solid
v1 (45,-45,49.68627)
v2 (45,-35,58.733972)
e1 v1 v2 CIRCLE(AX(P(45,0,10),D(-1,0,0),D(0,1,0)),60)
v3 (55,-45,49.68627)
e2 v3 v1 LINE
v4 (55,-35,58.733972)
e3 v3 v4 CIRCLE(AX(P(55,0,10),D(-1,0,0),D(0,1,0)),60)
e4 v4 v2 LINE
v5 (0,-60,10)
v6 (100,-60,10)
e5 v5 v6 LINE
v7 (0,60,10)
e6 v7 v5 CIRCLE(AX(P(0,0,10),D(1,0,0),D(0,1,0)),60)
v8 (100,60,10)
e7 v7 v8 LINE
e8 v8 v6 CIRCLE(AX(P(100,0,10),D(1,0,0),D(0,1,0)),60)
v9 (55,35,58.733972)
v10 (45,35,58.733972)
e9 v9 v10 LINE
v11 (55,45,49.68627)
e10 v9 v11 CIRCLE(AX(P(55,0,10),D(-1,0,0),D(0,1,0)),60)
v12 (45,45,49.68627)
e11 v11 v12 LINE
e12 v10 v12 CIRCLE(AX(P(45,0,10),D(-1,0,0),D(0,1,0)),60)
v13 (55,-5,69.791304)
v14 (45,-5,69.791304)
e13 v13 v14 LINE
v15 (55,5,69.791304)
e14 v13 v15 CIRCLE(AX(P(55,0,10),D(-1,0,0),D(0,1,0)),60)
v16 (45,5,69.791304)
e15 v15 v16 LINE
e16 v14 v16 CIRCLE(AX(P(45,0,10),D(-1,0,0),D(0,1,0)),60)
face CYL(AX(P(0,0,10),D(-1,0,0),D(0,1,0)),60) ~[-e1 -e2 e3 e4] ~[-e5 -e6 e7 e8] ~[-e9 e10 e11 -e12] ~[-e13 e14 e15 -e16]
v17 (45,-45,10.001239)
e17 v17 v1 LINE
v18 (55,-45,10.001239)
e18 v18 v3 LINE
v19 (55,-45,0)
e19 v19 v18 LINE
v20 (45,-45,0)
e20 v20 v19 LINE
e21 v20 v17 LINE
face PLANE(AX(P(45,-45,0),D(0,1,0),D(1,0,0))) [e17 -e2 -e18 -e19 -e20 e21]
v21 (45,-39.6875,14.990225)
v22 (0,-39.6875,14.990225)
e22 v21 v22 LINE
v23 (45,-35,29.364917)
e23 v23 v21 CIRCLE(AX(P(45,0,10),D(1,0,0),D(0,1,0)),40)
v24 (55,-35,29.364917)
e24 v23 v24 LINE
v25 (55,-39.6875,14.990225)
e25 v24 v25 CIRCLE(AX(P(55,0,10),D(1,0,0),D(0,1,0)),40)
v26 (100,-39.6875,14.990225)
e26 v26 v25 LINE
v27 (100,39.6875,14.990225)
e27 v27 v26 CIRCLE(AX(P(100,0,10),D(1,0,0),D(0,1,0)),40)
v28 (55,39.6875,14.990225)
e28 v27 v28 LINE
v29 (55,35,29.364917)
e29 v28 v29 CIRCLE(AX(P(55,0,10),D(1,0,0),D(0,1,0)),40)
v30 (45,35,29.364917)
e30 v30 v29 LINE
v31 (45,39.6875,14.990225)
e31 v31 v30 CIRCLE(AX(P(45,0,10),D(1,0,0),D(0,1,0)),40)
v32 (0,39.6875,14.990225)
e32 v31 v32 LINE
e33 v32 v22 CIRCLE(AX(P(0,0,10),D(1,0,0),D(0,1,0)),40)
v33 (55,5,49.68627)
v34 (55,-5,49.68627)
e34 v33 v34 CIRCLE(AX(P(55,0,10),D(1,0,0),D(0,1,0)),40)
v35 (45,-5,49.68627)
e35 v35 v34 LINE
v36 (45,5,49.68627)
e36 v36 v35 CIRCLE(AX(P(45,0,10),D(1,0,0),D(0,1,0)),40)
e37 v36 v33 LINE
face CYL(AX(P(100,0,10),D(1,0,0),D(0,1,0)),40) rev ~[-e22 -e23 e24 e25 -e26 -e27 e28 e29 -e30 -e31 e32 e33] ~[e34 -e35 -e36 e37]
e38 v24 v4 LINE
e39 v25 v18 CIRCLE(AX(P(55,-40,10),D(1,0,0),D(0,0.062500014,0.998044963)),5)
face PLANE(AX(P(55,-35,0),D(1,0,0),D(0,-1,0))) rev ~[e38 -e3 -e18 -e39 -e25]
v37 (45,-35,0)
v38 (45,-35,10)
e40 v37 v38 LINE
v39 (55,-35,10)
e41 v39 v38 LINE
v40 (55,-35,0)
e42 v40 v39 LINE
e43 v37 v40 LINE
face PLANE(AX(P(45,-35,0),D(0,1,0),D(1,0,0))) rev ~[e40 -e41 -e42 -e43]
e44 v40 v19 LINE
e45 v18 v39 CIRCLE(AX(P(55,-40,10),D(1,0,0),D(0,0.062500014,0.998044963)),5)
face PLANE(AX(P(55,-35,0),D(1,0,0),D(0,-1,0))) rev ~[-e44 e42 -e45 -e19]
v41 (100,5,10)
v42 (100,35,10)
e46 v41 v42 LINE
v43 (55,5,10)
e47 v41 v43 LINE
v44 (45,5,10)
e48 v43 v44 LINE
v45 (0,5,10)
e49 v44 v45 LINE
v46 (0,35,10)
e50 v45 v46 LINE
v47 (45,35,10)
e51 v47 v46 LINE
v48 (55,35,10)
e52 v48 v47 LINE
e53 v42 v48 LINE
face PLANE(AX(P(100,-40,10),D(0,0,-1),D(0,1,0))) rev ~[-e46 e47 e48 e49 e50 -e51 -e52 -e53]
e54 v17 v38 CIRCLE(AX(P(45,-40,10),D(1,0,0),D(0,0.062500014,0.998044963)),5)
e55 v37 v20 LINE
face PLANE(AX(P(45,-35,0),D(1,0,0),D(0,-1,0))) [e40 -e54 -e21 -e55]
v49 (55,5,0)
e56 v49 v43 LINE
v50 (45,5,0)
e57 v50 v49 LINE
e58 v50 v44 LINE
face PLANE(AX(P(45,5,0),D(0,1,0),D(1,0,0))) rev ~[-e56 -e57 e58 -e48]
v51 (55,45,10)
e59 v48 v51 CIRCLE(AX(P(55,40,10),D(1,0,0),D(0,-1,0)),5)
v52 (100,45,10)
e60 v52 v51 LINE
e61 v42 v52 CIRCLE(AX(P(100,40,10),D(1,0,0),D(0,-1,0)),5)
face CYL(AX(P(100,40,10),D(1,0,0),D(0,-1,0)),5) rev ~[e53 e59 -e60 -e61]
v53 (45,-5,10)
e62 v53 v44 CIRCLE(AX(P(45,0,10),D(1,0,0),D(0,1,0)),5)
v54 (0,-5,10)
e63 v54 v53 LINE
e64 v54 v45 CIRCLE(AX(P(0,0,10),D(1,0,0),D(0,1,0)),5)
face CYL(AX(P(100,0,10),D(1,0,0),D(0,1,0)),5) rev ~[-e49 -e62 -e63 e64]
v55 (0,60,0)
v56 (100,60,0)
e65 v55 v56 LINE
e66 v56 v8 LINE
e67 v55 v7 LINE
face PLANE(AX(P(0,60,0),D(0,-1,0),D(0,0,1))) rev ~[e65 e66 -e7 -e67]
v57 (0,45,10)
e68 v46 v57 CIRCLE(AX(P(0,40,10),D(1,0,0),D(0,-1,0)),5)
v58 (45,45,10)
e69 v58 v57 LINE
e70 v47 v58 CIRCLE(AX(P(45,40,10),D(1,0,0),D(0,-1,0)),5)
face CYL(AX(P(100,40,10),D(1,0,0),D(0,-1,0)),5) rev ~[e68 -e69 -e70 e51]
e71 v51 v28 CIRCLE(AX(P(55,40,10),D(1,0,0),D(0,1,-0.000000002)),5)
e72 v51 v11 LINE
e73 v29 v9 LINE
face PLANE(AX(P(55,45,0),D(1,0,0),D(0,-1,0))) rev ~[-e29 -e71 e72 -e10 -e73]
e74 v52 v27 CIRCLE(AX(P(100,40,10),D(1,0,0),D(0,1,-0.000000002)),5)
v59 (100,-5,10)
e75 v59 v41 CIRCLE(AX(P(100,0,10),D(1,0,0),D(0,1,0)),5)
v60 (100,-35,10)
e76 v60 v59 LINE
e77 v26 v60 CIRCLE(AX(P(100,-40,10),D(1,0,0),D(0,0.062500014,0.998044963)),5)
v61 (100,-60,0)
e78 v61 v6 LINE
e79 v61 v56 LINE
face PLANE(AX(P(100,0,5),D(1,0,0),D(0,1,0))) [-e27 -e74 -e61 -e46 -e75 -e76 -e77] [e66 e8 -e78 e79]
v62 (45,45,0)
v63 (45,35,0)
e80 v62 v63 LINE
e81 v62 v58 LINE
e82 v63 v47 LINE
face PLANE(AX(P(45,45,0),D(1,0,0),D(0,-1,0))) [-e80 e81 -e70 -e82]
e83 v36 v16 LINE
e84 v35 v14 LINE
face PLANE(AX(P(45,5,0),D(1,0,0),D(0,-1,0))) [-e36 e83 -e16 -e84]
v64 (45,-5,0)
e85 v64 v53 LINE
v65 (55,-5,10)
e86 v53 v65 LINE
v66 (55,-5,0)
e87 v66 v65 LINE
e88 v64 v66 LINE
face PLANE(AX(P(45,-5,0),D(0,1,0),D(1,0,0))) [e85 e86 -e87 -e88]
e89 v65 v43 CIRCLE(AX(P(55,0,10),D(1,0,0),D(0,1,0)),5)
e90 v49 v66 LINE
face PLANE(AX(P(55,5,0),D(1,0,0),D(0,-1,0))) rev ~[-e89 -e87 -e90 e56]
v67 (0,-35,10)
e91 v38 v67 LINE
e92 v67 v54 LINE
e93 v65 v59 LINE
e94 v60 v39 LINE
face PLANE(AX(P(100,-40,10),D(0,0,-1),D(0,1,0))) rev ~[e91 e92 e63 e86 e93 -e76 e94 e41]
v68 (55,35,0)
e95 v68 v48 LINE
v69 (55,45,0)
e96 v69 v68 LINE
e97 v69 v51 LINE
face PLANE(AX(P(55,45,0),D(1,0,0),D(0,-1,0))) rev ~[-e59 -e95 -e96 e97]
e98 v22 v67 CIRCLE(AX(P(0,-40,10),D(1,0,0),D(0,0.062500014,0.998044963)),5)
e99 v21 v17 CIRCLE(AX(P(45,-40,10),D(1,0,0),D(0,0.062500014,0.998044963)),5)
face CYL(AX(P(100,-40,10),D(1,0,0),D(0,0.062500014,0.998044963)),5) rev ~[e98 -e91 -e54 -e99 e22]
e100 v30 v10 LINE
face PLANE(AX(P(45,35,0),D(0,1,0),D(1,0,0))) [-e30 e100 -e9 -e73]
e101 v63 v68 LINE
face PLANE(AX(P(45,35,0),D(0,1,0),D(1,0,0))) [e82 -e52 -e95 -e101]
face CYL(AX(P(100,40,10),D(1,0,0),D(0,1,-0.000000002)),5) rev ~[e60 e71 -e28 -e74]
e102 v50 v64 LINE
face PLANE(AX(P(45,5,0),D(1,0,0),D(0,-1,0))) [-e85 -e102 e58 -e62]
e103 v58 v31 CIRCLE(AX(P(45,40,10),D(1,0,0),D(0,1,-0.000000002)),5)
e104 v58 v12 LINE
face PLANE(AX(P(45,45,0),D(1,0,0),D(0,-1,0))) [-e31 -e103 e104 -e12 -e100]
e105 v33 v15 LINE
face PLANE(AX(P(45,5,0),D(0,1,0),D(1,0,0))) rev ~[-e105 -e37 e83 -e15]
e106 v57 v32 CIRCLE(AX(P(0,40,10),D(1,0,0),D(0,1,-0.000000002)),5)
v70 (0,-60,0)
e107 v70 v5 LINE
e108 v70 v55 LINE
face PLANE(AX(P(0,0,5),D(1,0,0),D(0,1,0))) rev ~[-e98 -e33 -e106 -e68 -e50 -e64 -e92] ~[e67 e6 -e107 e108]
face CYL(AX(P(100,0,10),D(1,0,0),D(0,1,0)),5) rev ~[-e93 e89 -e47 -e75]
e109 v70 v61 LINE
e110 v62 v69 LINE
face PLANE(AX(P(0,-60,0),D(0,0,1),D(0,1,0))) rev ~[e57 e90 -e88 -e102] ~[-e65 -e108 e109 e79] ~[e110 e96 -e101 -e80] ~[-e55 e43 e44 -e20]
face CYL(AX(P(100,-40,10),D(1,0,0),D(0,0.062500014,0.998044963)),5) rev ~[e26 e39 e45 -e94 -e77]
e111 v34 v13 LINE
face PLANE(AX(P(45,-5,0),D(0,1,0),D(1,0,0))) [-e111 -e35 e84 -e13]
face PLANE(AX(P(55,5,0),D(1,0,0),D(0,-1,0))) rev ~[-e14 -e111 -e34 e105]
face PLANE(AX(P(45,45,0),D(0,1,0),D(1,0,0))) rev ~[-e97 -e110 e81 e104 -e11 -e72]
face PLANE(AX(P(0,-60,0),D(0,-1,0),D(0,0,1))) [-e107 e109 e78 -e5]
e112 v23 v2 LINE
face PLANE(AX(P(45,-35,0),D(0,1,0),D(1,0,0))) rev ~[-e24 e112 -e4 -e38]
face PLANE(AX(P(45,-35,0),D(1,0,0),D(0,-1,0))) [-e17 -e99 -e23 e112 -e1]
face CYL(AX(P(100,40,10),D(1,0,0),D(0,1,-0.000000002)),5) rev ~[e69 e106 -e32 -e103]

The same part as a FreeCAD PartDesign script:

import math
import FreeCAD as App
import Part
import Sketcher


def add_polygon(sketch, points):
    """Adds a closed chain of lines whose ends are joined by coincident constraints."""
    first, n = sketch.GeometryCount, len(points)
    for a, b in zip(points, points[1:] + points[:1]):
        sketch.addGeometry(Part.LineSegment(App.Vector(*a, 0), App.Vector(*b, 0)), False)
    for i in range(n):
        sketch.addConstraint(Sketcher.Constraint("Coincident", first + i, 2, first + (i + 1) % n, 1))

doc = App.newDocument("Part")
body = doc.addObject("PartDesign::Body", "Body")

sketch1 = body.newObject("Sketcher::SketchObject", "Sketch")
sketch1.AttachmentSupport = (doc.getObject("YZ_Plane"), [""])
sketch1.MapMode = "FlatFace"
sketch1.addGeometry(Part.LineSegment(App.Vector(-60, 10, 0), App.Vector(-60, 0, 0)), False)
sketch1.addGeometry(Part.LineSegment(App.Vector(-60, 0, 0), App.Vector(60, 0, 0)), False)
sketch1.addGeometry(Part.LineSegment(App.Vector(60, 0, 0), App.Vector(60, 10, 0)), False)
sketch1.addGeometry(Part.ArcOfCircle(Part.Circle(App.Vector(0, 10, 0), App.Vector(0, 0, 1), 60), math.radians(0), math.radians(180)), False)
sketch1.addConstraint(Sketcher.Constraint("Coincident", 0, 2, 1, 1))
sketch1.addConstraint(Sketcher.Constraint("Coincident", 1, 2, 2, 1))
sketch1.addConstraint(Sketcher.Constraint("Tangent", 2, 2, 3, 1))
sketch1.addConstraint(Sketcher.Constraint("Tangent", 3, 2, 0, 1))
sketch1.addConstraint(Sketcher.Constraint("Vertical", 0))
sketch1.addConstraint(Sketcher.Constraint("Horizontal", 1))
sketch1.addConstraint(Sketcher.Constraint("Vertical", 2))
sketch1.addConstraint(Sketcher.Constraint("Symmetric", 0, 2, 1, 2, -1, 1))
sketch1.addConstraint(Sketcher.Constraint("Radius", 3, 60.0))
sketch1.addConstraint(Sketcher.Constraint("DistanceY", 0, 2, 0, 1, 10.0))
pad1 = body.newObject("PartDesign::Pad", "Pad")
pad1.Profile = sketch1
pad1.Length = 100

sketch2 = body.newObject("Sketcher::SketchObject", "Sketch001")
sketch2.AttachmentSupport = (doc.getObject("YZ_Plane"), [""])
sketch2.MapMode = "FlatFace"
sketch2.AttachmentOffset = App.Placement(App.Vector(0, 0, 100), App.Rotation())
sketch2.addGeometry(Part.ArcOfCircle(Part.Circle(App.Vector(0, 10, 0), App.Vector(0, 0, 1), 40), math.radians(0), math.radians(180)), False)
sketch2.addGeometry(Part.LineSegment(App.Vector(-40, 10, 0), App.Vector(40, 10, 0)), False)
sketch2.addConstraint(Sketcher.Constraint("Coincident", 0, 1, 1, 2))
sketch2.addConstraint(Sketcher.Constraint("Coincident", 1, 1, 0, 2))
sketch2.addConstraint(Sketcher.Constraint("Horizontal", 1))
sketch2.addConstraint(Sketcher.Constraint("PointOnObject", 0, 3, -2))
sketch2.addConstraint(Sketcher.Constraint("Radius", 0, 40.0))
sketch2.addConstraint(Sketcher.Constraint("DistanceY", -1, 1, 0, 3, 10.0))
sketch2.addConstraint(Sketcher.Constraint("DistanceY", -1, 1, 0, 1, 10.0))
pocket1 = body.newObject("PartDesign::Pocket", "Pocket")
pocket1.Profile = sketch2
pocket1.Type = "ThroughAll"

sketch3 = body.newObject("Sketcher::SketchObject", "Sketch002")
sketch3.AttachmentSupport = (doc.getObject("YZ_Plane"), [""])
sketch3.MapMode = "FlatFace"
sketch3.AttachmentOffset = App.Placement(App.Vector(0, 0, 100), App.Rotation())
sketch3.addGeometry(Part.Circle(App.Vector(0, 10, 0), App.Vector(0, 0, 1), 5), False)
sketch3.addGeometry(Part.ArcOfCircle(Part.Circle(App.Vector(40, 10, 0), App.Vector(0, 0, 1), 5), math.radians(93.583324), math.radians(180)), False)
sketch3.addGeometry(Part.ArcOfCircle(Part.Circle(App.Vector(40, 10, 0), App.Vector(0, 0, 1), 5), math.radians(180), math.radians(360)), False)
sketch3.addGeometry(Part.ArcOfCircle(Part.Circle(App.Vector(40, 10, 0), App.Vector(0, 0, 1), 5), math.radians(0), math.radians(93.58332)), False)
sketch3.addGeometry(Part.ArcOfCircle(Part.Circle(App.Vector(-40, 10, 0), App.Vector(0, 0, 1), 5), math.radians(0), math.radians(86.416676)), False)
sketch3.addGeometry(Part.ArcOfCircle(Part.Circle(App.Vector(-40, 10, 0), App.Vector(0, 0, 1), 5), math.radians(86.416677), math.radians(359.999999)), False)
sketch3.addConstraint(Sketcher.Constraint("Tangent", 1, 2, 2, 1))
sketch3.addConstraint(Sketcher.Constraint("Tangent", 2, 2, 3, 1))
sketch3.addConstraint(Sketcher.Constraint("Tangent", 3, 2, 1, 1))
sketch3.addConstraint(Sketcher.Constraint("Tangent", 4, 1, 5, 2))
sketch3.addConstraint(Sketcher.Constraint("Coincident", 5, 1, 4, 2))
sketch3.addConstraint(Sketcher.Constraint("Equal", 0, 1))
sketch3.addConstraint(Sketcher.Constraint("Equal", 3, 4))
sketch3.addConstraint(Sketcher.Constraint("Symmetric", 1, 3, 4, 3, -2))
sketch3.addConstraint(Sketcher.Constraint("PointOnObject", 0, 3, -2))
sketch3.addConstraint(Sketcher.Constraint("Horizontal", 0, 3, 1, 3))
sketch3.addConstraint(Sketcher.Constraint("Horizontal", 5, 3, 1, 2))
sketch3.addConstraint(Sketcher.Constraint("Horizontal", 1, 2, 2, 2))
sketch3.addConstraint(Sketcher.Constraint("Horizontal", 2, 2, 4, 1))
sketch3.addConstraint(Sketcher.Constraint("Horizontal", 3, 2, 5, 1))
sketch3.addConstraint(Sketcher.Constraint("Diameter", 0, 10.0))
sketch3.addConstraint(Sketcher.Constraint("DistanceY", -1, 1, 0, 3, 10.0))
sketch3.addConstraint(Sketcher.Constraint("DistanceX", -1, 1, 1, 3, 40.0))
sketch3.addConstraint(Sketcher.Constraint("DistanceX", -1, 1, 3, 2, 39.6875))
pocket2 = body.newObject("PartDesign::Pocket", "Pocket001")
pocket2.Profile = sketch3
pocket2.Type = "ThroughAll"

sketch4 = body.newObject("Sketcher::SketchObject", "Sketch003")
sketch4.AttachmentSupport = (doc.getObject("XY_Plane"), [""])
sketch4.MapMode = "FlatFace"
add_polygon(sketch4, [(45, -45), (45, -35), (55, -35), (55, -45)])
add_polygon(sketch4, [(45, -5), (45, 5), (55, 5), (55, -5)])
add_polygon(sketch4, [(45, 35), (45, 45), (55, 45), (55, 35)])
sketch4.addConstraint(Sketcher.Constraint("Vertical", 0))
sketch4.addConstraint(Sketcher.Constraint("Horizontal", 1))
sketch4.addConstraint(Sketcher.Constraint("Vertical", 2))
sketch4.addConstraint(Sketcher.Constraint("Horizontal", 3))
sketch4.addConstraint(Sketcher.Constraint("Vertical", 4))
sketch4.addConstraint(Sketcher.Constraint("Horizontal", 5))
sketch4.addConstraint(Sketcher.Constraint("Vertical", 6))
sketch4.addConstraint(Sketcher.Constraint("Horizontal", 7))
sketch4.addConstraint(Sketcher.Constraint("Vertical", 8))
sketch4.addConstraint(Sketcher.Constraint("Horizontal", 9))
sketch4.addConstraint(Sketcher.Constraint("Vertical", 10))
sketch4.addConstraint(Sketcher.Constraint("Horizontal", 11))
sketch4.addConstraint(Sketcher.Constraint("Symmetric", 3, 2, 8, 2, -1))
sketch4.addConstraint(Sketcher.Constraint("Symmetric", 1, 2, 10, 2, -1))
sketch4.addConstraint(Sketcher.Constraint("Vertical", 3, 2, 4, 2))
sketch4.addConstraint(Sketcher.Constraint("Vertical", 2, 2, 5, 2))
sketch4.addConstraint(Sketcher.Constraint("Equal", 11, 0))
sketch4.addConstraint(Sketcher.Constraint("Equal", 2, 4))
sketch4.addConstraint(Sketcher.Constraint("DistanceX", 1, 1, 1, 2, 10.0))
sketch4.addConstraint(Sketcher.Constraint("DistanceX", -1, 1, 0, 2, 45.0))
sketch4.addConstraint(Sketcher.Constraint("DistanceY", 0, 2, -1, 1, 35.0))
sketch4.addConstraint(Sketcher.Constraint("DistanceY", -1, 1, 4, 2, 5.0))
pocket3 = body.newObject("PartDesign::Pocket", "Pocket002")
pocket3.Profile = sketch4
pocket3.Type = "ThroughAll"
pocket3.Reversed = True

doc.recompute()
